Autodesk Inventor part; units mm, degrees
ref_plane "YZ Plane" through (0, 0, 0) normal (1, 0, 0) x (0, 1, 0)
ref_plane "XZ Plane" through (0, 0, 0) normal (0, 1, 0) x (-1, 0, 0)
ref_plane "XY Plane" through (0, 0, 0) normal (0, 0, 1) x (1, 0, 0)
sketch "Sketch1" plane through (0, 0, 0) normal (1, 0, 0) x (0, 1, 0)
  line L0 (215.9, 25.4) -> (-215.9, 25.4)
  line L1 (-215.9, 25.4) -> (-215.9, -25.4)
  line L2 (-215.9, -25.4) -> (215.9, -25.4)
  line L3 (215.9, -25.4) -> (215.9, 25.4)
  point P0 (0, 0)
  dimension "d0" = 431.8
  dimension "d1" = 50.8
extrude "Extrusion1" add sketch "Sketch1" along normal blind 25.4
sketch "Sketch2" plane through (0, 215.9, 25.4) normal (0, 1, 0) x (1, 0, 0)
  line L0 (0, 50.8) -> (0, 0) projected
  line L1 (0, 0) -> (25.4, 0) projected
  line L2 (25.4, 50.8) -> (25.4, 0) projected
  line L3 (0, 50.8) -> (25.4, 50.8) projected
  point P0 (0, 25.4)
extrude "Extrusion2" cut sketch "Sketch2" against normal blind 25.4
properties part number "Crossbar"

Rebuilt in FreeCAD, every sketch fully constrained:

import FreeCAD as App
import Part
import Sketcher

V = App.Vector
Q = App.Units.Quantity


def add_polygon(sketch, points):
    """Adds a closed chain of lines whose ends are joined by coincident constraints."""
    first, n = sketch.GeometryCount, len(points)
    for a, b in zip(points, points[1:] + points[:1]):
        sketch.addGeometry(Part.LineSegment(App.Vector(*a, 0), App.Vector(*b, 0)), False)
    for i in range(n):
        sketch.addConstraint(Sketcher.Constraint("Coincident", first + i, 2, first + (i + 1) % n, 1))

doc = App.newDocument("Part")
body = doc.addObject("PartDesign::Body", "Body")

# Sketch on YZ plane
sketch1 = doc.addObject("Sketcher::SketchObject", "Sketch")
body.addObject(sketch1)
sketch1.AttachmentSupport = (doc.YZ_Plane, [""])
sketch1.MapMode = "FlatFace"
add_polygon(sketch1, [(216, -25), (216, 25), (-216, 25), (-216, -25)])  # lines 0-3
sketch1.addConstraint([
    Sketcher.Constraint("Vertical", 0),
    Sketcher.Constraint("Horizontal", 1),
    Sketcher.Constraint("Vertical", 2),
    Sketcher.Constraint("Horizontal", 3),
    Sketcher.Constraint("Symmetric", 0, 2, 2, 2, -1, 1),
    Sketcher.Constraint("DistanceX", 1, 2, 1, 1, Q("17 in")),
    Sketcher.Constraint("DistanceY", 0, 1, 0, 2, Q("2 in")),
])
pad1 = doc.addObject("PartDesign::Pad", "Pad")
body.addObject(pad1)
pad1.Profile = sketch1
pad1.Length = Q("1 in")

# Sketch on XZ plane
sketch2 = doc.addObject("Sketcher::SketchObject", "Sketch001")
body.addObject(sketch2)
sketch2.AttachmentSupport = (doc.XZ_Plane, [""])
sketch2.MapMode = "FlatFace"
sketch2.AttachmentOffset = App.Placement(V(0, 0, -8.5 * 25.4), App.Rotation())
add_polygon(sketch2, [(25, -25), (0, -25), (0, 25), (25, 25)])  # lines 0-3
sketch2.addConstraint([
    Sketcher.Constraint("Horizontal", 0),
    Sketcher.Constraint("Vertical", 1),
    Sketcher.Constraint("Horizontal", 2),
    Sketcher.Constraint("Vertical", 3),
    Sketcher.Constraint("Symmetric", 0, 2, 1, 2, -1, 1),
    Sketcher.Constraint("DistanceX", 0, 2, 0, 1, Q("1 in")),
    Sketcher.Constraint("DistanceY", 1, 1, 1, 2, Q("2 in")),
])
pocket1 = doc.addObject("PartDesign::Pocket", "Pocket")
body.addObject(pocket1)
pocket1.Profile = sketch2
pocket1.Length = Q("1 in")
pocket1.Reversed = True

doc.recompute()
